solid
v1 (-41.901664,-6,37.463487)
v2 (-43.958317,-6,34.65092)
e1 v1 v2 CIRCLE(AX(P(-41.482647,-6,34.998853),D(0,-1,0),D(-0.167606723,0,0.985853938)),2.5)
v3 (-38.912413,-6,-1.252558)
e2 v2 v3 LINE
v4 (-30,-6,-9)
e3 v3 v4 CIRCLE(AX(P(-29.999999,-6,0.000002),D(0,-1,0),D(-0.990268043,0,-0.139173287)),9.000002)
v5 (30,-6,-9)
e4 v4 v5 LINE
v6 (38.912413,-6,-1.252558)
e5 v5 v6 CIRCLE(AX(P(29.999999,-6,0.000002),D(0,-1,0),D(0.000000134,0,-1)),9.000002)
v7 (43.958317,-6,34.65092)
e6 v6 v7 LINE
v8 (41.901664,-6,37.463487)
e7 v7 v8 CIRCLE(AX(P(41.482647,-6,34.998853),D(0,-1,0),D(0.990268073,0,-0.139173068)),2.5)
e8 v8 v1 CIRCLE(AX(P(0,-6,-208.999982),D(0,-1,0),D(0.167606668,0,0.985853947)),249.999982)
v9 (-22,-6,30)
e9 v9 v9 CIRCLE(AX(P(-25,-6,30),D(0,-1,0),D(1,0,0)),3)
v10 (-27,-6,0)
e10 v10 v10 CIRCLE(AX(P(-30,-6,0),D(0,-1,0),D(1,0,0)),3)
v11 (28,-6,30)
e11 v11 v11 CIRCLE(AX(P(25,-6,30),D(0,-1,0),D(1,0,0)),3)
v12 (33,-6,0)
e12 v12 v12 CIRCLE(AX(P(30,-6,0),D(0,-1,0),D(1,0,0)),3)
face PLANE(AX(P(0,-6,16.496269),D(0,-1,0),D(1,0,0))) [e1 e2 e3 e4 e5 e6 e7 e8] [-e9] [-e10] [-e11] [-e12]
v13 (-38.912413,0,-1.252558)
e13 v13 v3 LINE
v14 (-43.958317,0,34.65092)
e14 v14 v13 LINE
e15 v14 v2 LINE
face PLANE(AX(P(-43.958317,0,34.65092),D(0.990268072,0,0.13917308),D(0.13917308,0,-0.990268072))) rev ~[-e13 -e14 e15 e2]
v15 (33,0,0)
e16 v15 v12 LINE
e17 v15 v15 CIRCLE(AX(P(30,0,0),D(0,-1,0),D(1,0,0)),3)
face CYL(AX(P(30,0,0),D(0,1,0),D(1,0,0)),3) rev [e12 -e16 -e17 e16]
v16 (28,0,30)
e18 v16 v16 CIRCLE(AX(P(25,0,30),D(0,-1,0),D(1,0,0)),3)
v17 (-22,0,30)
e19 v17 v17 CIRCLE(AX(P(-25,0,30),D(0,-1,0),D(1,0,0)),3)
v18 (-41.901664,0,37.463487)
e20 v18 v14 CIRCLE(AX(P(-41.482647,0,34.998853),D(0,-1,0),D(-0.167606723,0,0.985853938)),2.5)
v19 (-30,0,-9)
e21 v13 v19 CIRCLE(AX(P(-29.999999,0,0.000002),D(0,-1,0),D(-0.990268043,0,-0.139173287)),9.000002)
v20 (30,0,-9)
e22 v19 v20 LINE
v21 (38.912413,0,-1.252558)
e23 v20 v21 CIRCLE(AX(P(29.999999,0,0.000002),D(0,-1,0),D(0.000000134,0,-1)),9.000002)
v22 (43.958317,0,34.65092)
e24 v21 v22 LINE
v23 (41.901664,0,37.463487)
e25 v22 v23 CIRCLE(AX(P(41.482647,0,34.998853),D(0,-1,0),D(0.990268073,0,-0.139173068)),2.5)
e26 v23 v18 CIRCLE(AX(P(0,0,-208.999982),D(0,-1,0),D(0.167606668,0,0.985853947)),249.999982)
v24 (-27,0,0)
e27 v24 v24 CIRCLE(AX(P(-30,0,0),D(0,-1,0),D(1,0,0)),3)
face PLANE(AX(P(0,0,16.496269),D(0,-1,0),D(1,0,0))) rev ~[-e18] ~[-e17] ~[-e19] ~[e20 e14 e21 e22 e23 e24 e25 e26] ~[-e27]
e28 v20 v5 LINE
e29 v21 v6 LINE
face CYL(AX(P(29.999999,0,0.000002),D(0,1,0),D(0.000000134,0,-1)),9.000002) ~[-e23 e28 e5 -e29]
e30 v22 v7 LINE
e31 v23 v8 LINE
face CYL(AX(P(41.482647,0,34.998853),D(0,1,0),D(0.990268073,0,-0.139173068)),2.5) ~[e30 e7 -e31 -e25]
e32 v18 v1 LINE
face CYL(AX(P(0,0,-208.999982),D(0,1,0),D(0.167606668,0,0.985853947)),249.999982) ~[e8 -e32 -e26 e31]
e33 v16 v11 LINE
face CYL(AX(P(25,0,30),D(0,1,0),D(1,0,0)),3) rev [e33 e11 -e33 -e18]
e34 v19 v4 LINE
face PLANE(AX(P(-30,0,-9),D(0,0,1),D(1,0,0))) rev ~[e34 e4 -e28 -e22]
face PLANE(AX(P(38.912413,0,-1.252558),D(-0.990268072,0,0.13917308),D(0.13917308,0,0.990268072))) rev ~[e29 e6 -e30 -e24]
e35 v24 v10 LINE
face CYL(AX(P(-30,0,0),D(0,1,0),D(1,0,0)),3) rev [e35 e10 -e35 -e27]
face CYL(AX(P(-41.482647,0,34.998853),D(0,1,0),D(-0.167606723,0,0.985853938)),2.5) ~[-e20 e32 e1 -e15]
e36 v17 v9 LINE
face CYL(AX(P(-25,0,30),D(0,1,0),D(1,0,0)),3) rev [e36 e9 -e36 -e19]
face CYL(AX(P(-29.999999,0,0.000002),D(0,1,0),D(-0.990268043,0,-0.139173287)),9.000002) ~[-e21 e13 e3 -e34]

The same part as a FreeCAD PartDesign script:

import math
import FreeCAD as App
import Part
import Sketcher
Q = App.Units.Quantity

doc = App.newDocument("Part")
body = doc.addObject("PartDesign::Body", "Body")

# Sketch on XZ plane
sketch1 = doc.addObject("Sketcher::SketchObject", "Sketch")
body.addObject(sketch1)
sketch1.AttachmentSupport = (doc.XZ_Plane, [""])
sketch1.MapMode = "FlatFace"
sketch1.addGeometry([
    Part.LineSegment(App.Vector(-30, -9, 0), App.Vector(30, -9, 0)),  # 0
    Part.ArcOfCircle(Part.Circle(App.Vector(30, 0, 0), App.Vector(0, 0, 1), 9), math.radians(-90), math.radians(-8)),  # 1
    Part.LineSegment(App.Vector(38.9, -1.3, 0), App.Vector(44, 34.7, 0)),  # 2
    Part.ArcOfCircle(Part.Circle(App.Vector(41.5, 35, 0), App.Vector(0, 0, 1), 2.5), math.radians(-8), math.radians(80)),  # 3
    Part.ArcOfCircle(Part.Circle(App.Vector(0, -209, 0), App.Vector(0, 0, 1), 250), math.radians(80.35), math.radians(99.65)),  # 4
    Part.ArcOfCircle(Part.Circle(App.Vector(-41.5, 35, 0), App.Vector(0, 0, 1), 2.5), math.radians(100), math.radians(188)),  # 5
    Part.LineSegment(App.Vector(-44, 34.7, 0), App.Vector(-38.9, -1.3, 0)),  # 6
    Part.ArcOfCircle(Part.Circle(App.Vector(-30, 0, 0), App.Vector(0, 0, 1), 9), math.radians(-172), math.radians(-90)),  # 7
    Part.Circle(App.Vector(-30, 0, 0), App.Vector(0, 0, 1), 3),  # 8
    Part.Circle(App.Vector(30, 0, 0), App.Vector(0, 0, 1), 3),  # 9
    Part.Circle(App.Vector(-25, 30, 0), App.Vector(0, 0, 1), 3),  # 10
    Part.Circle(App.Vector(25, 30, 0), App.Vector(0, 0, 1), 3),  # 11
], False)
sketch1.addConstraint([
    Sketcher.Constraint("Tangent", 0, 2, 1, 1),
    Sketcher.Constraint("Tangent", 1, 2, 2, 1),
    Sketcher.Constraint("Tangent", 2, 2, 3, 1),
    Sketcher.Constraint("Tangent", 3, 2, 4, 1),
    Sketcher.Constraint("Tangent", 4, 2, 5, 1),
    Sketcher.Constraint("Tangent", 5, 2, 6, 1),
    Sketcher.Constraint("Tangent", 6, 2, 7, 1),
    Sketcher.Constraint("Tangent", 7, 2, 0, 1),
    Sketcher.Constraint("Horizontal", 0),
    Sketcher.Constraint("Coincident", 8, 3, 7, 3),
    Sketcher.Constraint("Coincident", 9, 3, 1, 3),
    Sketcher.Constraint("Equal", 3, 5),
    Sketcher.Constraint("Equal", 1, 7),
    Sketcher.Constraint("Equal", 8, 9),
    Sketcher.Constraint("Equal", 9, 10),
    Sketcher.Constraint("Equal", 10, 11),
    Sketcher.Constraint("Symmetric", 1, 3, 7, 3, -1, 1),
    Sketcher.Constraint("Symmetric", 3, 3, 5, 3, -2),
    Sketcher.Constraint("Symmetric", 10, 3, 11, 3, -2),
    Sketcher.Constraint("Diameter", 8, Q("6 mm")),
    Sketcher.Constraint("Radius", 1, Q("9.000002 mm")),
    Sketcher.Constraint("Radius", 3, Q("2.5 mm")),
    Sketcher.Constraint("DistanceX", 0, 1, 0, 2, Q("60 mm")),
    Sketcher.Constraint("Angle", 2, Q("82.000001 deg")),
    Sketcher.Constraint("DistanceX", 10, 3, -1, 1, Q("25 mm")),
    Sketcher.Constraint("DistanceY", -1, 1, 10, 3, Q("30 mm")),
    Sketcher.Constraint("Radius", 4, Q("249.999982 mm")),
    Sketcher.Constraint("Distance", 2, Q("36.256322 mm")),
])
pad1 = doc.addObject("PartDesign::Pad", "Pad")
body.addObject(pad1)
pad1.Profile = sketch1
pad1.Length = 6

doc.recompute()
